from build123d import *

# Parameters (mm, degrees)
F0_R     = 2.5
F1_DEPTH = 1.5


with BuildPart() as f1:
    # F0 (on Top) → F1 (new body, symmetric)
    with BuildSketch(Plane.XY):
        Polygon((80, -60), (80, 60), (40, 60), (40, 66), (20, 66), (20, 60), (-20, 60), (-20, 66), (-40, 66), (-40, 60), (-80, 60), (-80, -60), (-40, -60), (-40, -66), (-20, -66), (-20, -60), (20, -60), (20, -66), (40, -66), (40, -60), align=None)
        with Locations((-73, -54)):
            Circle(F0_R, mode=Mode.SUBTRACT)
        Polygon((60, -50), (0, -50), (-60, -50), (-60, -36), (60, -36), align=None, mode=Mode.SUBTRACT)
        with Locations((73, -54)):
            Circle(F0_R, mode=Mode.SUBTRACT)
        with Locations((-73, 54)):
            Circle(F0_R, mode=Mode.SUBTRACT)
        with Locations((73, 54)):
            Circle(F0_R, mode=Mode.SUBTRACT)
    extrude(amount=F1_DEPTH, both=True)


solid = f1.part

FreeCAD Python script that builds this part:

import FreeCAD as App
import Part
import Sketcher


def add_polygon(sketch, points):
    """Adds a closed chain of lines whose ends are joined by coincident constraints."""
    first, n = sketch.GeometryCount, len(points)
    for a, b in zip(points, points[1:] + points[:1]):
        sketch.addGeometry(Part.LineSegment(App.Vector(*a, 0), App.Vector(*b, 0)), False)
    for i in range(n):
        sketch.addConstraint(Sketcher.Constraint("Coincident", first + i, 2, first + (i + 1) % n, 1))

doc = App.newDocument("Part")
body = doc.addObject("PartDesign::Body", "Body")

# Sketch on XY plane
sketch1 = doc.addObject("Sketcher::SketchObject", "Sketch")
body.addObject(sketch1)
sketch1.AttachmentSupport = (doc.XY_Plane, [""])
sketch1.MapMode = "FlatFace"
add_polygon(sketch1, [(80, -60), (80, 60), (40, 60), (40, 66), (20, 66), (20, 60), (-20, 60), (-20, 66), (-40, 66), (-40, 60), (-80, 60), (-80, -60), (-40, -60), (-40, -66), (-20, -66), (-20, -60), (20, -60), (20, -66), (40, -66), (40, -60)])  # lines 0-19
sketch1.addGeometry(Part.Circle(App.Vector(-73, -54, 0), App.Vector(0, 0, 1), 2.5), False)  # 20
add_polygon(sketch1, [(60, -36), (60, -50), (-60, -50), (-60, -36)])  # lines 21-24
sketch1.addGeometry(Part.Circle(App.Vector(73, -54, 0), App.Vector(0, 0, 1), 2.5), False)  # 25
sketch1.addGeometry(Part.Circle(App.Vector(-73, 54, 0), App.Vector(0, 0, 1), 2.5), False)  # 26
sketch1.addGeometry(Part.Circle(App.Vector(73, 54, 0), App.Vector(0, 0, 1), 2.5), False)  # 27
sketch1.addConstraint(Sketcher.Constraint("Vertical", 0))
sketch1.addConstraint(Sketcher.Constraint("Horizontal", 1))
sketch1.addConstraint(Sketcher.Constraint("Vertical", 2))
sketch1.addConstraint(Sketcher.Constraint("Horizontal", 3))
sketch1.addConstraint(Sketcher.Constraint("Vertical", 4))
sketch1.addConstraint(Sketcher.Constraint("Horizontal", 5))
sketch1.addConstraint(Sketcher.Constraint("Vertical", 6))
sketch1.addConstraint(Sketcher.Constraint("Horizontal", 7))
sketch1.addConstraint(Sketcher.Constraint("Vertical", 8))
sketch1.addConstraint(Sketcher.Constraint("Horizontal", 9))
sketch1.addConstraint(Sketcher.Constraint("Vertical", 10))
sketch1.addConstraint(Sketcher.Constraint("Horizontal", 11))
sketch1.addConstraint(Sketcher.Constraint("Vertical", 12))
sketch1.addConstraint(Sketcher.Constraint("Horizontal", 13))
sketch1.addConstraint(Sketcher.Constraint("Vertical", 14))
sketch1.addConstraint(Sketcher.Constraint("Horizontal", 15))
sketch1.addConstraint(Sketcher.Constraint("Vertical", 16))
sketch1.addConstraint(Sketcher.Constraint("Horizontal", 17))
sketch1.addConstraint(Sketcher.Constraint("Vertical", 18))
sketch1.addConstraint(Sketcher.Constraint("Horizontal", 19))
sketch1.addConstraint(Sketcher.Constraint("Vertical", 21))
sketch1.addConstraint(Sketcher.Constraint("Horizontal", 22))
sketch1.addConstraint(Sketcher.Constraint("Vertical", 23))
sketch1.addConstraint(Sketcher.Constraint("Horizontal", 24))
sketch1.addConstraint(Sketcher.Constraint("Equal", 20, 25))
sketch1.addConstraint(Sketcher.Constraint("Equal", 25, 26))
sketch1.addConstraint(Sketcher.Constraint("Equal", 26, 27))
sketch1.addConstraint(Sketcher.Constraint("Symmetric", 25, 3, 26, 3, -1, 1))
sketch1.addConstraint(Sketcher.Constraint("Symmetric", 20, 3, 27, 3, -1, 1))
sketch1.addConstraint(Sketcher.Constraint("Symmetric", 0, 2, 10, 2, -1, 1))
sketch1.addConstraint(Sketcher.Constraint("Symmetric", 2, 2, 12, 2, -1, 1))
sketch1.addConstraint(Sketcher.Constraint("Symmetric", 4, 2, 14, 2, -1, 1))
sketch1.addConstraint(Sketcher.Constraint("Symmetric", 6, 2, 16, 2, -1, 1))
sketch1.addConstraint(Sketcher.Constraint("Symmetric", 8, 2, 18, 2, -1, 1))
sketch1.addConstraint(Sketcher.Constraint("Symmetric", 20, 3, 25, 3, -2))
sketch1.addConstraint(Sketcher.Constraint("Symmetric", 3, 2, 6, 2, -2))
sketch1.addConstraint(Sketcher.Constraint("Symmetric", 1, 2, 8, 2, -2))
sketch1.addConstraint(Sketcher.Constraint("Horizontal", 1, 2, 4, 2))
sketch1.addConstraint(Sketcher.Constraint("Equal", 1, 5))
sketch1.addConstraint(Sketcher.Constraint("Equal", 24, 0))
sketch1.addConstraint(Sketcher.Constraint("Diameter", 20, 5.0))
sketch1.addConstraint(Sketcher.Constraint("DistanceX", 1, 2, 1, 1, 40.0))
sketch1.addConstraint(Sketcher.Constraint("DistanceX", 3, 2, 3, 1, 20.0))
sketch1.addConstraint(Sketcher.Constraint("DistanceX", 22, 2, 22, 1, 120.0))
sketch1.addConstraint(Sketcher.Constraint("DistanceY", 2, 1, 2, 2, 6.0))
sketch1.addConstraint(Sketcher.Constraint("DistanceY", 21, 2, 21, 1, 14.0))
sketch1.addConstraint(Sketcher.Constraint("DistanceX", 20, 3, -1, 1, 73.0))
sketch1.addConstraint(Sketcher.Constraint("DistanceY", 20, 3, -1, 1, 54.0))
sketch1.addConstraint(Sketcher.Constraint("DistanceX", -1, 1, 21, 2, 60.0))
sketch1.addConstraint(Sketcher.Constraint("DistanceY", 21, 2, -1, 1, 50.0))
pad1 = doc.addObject("PartDesign::Pad", "Pad")
body.addObject(pad1)
pad1.Profile = sketch1
pad1.Length = 3
pad1.Midplane = True

doc.recompute()
